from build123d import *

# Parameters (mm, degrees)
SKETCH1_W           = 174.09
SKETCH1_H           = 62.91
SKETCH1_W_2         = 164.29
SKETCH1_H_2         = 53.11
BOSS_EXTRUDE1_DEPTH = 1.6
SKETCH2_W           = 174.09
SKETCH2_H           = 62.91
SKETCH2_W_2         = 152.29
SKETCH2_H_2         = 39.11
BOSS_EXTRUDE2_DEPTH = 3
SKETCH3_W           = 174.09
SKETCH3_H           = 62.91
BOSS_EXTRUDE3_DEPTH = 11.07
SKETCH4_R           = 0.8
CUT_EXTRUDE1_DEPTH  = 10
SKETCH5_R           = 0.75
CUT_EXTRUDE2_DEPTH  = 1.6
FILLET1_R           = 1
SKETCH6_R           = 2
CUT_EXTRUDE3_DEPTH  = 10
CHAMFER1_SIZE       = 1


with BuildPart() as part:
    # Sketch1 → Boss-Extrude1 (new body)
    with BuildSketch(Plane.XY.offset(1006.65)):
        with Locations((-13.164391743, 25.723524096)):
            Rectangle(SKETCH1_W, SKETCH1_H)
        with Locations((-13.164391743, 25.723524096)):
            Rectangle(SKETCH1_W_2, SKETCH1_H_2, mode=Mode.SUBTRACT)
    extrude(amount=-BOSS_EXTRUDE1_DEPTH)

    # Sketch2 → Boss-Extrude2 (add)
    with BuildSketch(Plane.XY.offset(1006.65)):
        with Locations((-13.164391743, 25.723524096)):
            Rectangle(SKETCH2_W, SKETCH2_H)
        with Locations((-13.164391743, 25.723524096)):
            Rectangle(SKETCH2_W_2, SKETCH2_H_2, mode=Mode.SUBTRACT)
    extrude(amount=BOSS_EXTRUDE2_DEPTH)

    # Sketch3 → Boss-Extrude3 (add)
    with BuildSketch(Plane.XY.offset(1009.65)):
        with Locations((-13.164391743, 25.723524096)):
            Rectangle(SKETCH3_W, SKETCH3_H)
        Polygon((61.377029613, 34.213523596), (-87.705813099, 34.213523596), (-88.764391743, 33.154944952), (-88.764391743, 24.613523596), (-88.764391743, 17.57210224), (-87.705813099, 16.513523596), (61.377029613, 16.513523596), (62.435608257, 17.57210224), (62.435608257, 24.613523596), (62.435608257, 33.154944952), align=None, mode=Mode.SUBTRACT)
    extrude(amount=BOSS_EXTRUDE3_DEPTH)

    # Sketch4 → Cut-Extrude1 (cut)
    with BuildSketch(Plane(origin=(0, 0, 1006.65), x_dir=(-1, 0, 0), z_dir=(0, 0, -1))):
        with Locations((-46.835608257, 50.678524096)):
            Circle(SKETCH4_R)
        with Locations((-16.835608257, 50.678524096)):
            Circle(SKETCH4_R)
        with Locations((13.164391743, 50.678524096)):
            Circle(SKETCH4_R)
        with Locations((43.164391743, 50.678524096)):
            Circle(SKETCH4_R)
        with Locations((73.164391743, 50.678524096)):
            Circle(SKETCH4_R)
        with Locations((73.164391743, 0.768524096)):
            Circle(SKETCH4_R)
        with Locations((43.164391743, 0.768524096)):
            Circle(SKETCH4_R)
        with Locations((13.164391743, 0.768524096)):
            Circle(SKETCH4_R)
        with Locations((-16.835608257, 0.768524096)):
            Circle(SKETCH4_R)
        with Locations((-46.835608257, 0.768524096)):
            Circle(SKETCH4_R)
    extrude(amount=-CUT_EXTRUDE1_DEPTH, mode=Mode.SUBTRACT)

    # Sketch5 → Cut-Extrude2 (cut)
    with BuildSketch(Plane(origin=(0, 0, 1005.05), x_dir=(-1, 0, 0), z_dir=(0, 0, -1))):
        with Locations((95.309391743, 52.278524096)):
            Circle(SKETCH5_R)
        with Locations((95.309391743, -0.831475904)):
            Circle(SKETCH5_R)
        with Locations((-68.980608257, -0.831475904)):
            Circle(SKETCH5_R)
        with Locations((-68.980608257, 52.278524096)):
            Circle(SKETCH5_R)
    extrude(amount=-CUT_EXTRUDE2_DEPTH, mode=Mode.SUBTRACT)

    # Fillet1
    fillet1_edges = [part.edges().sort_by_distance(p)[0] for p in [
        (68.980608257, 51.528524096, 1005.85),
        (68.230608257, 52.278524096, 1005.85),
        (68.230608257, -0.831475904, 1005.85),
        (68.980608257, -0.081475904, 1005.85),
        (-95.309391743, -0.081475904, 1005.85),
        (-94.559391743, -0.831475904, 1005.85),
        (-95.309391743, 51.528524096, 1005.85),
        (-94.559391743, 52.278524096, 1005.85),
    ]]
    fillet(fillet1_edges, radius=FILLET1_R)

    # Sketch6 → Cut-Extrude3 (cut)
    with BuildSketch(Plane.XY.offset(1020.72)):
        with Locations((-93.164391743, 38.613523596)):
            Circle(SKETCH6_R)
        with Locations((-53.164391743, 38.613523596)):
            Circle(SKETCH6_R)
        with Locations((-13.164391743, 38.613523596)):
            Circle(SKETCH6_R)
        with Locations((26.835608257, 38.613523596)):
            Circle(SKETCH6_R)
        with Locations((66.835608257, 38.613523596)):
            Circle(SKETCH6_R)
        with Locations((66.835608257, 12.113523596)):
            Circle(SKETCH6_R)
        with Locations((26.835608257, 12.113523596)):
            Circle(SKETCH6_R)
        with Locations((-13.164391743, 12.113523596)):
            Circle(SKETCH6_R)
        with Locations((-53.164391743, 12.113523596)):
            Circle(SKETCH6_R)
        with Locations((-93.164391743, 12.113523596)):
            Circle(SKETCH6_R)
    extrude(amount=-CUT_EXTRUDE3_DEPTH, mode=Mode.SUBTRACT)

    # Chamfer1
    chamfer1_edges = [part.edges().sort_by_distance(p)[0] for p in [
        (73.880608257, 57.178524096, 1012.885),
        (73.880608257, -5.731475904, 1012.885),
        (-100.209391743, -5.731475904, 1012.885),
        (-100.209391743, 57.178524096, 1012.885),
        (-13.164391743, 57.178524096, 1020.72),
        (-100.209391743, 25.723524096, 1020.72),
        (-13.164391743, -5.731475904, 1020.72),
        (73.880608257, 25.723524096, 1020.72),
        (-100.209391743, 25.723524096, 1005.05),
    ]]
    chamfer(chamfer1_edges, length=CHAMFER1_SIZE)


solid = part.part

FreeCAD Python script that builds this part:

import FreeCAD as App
import Part
import Sketcher

V = App.Vector
Q = App.Units.Quantity


def edges_at(feature, points):
    """Names of the edges that pass closest to the given points."""
    edges = feature.Shape.Edges
    near = lambda p: min(range(len(edges)), key=lambda i: edges[i].distToShape(Part.Vertex(*p))[0])
    return sorted({f"Edge{near(p) + 1}" for p in points})


def add_polygon(sketch, points):
    """Adds a closed chain of lines whose ends are joined by coincident constraints."""
    first, n = sketch.GeometryCount, len(points)
    for a, b in zip(points, points[1:] + points[:1]):
        sketch.addGeometry(Part.LineSegment(App.Vector(*a, 0), App.Vector(*b, 0)), False)
    for i in range(n):
        sketch.addConstraint(Sketcher.Constraint("Coincident", first + i, 2, first + (i + 1) % n, 1))

doc = App.newDocument("Part")
params = doc.addObject("Spreadsheet::Sheet", "Params")
for row, (alias, value) in enumerate([
    ("sketch1_width", "174.09 mm"),
    ("sketch1_width2", "164.29 mm"),
    ("sketch1_height", "62.91 mm"),
    ("sketch1_height2", "53.11 mm"),
    ("pad1_length", "1.6 mm"),
    ("sketch2_width", "174.09 mm"),
    ("sketch2_width2", "152.29 mm"),
    ("sketch2_height", "62.91 mm"),
    ("sketch2_height2", "39.11 mm"),
    ("pad2_length", "3 mm"),
    ("sketch3_width", "174.09 mm"),
    ("sketch3_height", "62.91 mm"),
    ("pad3_length", "11.07 mm"),
    ("sketch4_diameter", "1.6 mm"),
    ("pocket1_length", "10 mm"),
    ("sketch5_diameter", "1.5 mm"),
    ("pocket2_length", "1.6 mm"),
    ("fillet_radius", "1 mm"),
    ("sketch6_diameter", "4 mm"),
    ("pocket3_length", "10 mm"),
    ("chamfer_size", "1 mm"),
], start=1):
    params.set(f"A{row}", alias)
    params.set(f"B{row}", "=" + value)
    params.setAlias(f"B{row}", alias)

body = doc.addObject("PartDesign::Body", "Body")

# Sketch on XY plane
sketch1 = body.newObject("Sketcher::SketchObject", "Sketch")
sketch1.AttachmentSupport = (doc.getObject("XY_Plane"), [""])
sketch1.MapMode = "FlatFace"
sketch1.AttachmentOffset = App.Placement(V(0, 0, 1006.65), App.Rotation())
add_polygon(sketch1, [(-100, 57), (-100, -6), (74, -6), (74, 57)])  # lines 0-3
add_polygon(sketch1, [(69, -1), (-95, -1), (-95, 52), (69, 52)])  # lines 4-7
sketch1.addConstraint(Sketcher.Constraint("Vertical", 0))
sketch1.addConstraint(Sketcher.Constraint("Horizontal", 1))
sketch1.addConstraint(Sketcher.Constraint("Vertical", 2))
sketch1.addConstraint(Sketcher.Constraint("Horizontal", 3))
sketch1.addConstraint(Sketcher.Constraint("Horizontal", 4))
sketch1.addConstraint(Sketcher.Constraint("Vertical", 5))
sketch1.addConstraint(Sketcher.Constraint("Horizontal", 6))
sketch1.addConstraint(Sketcher.Constraint("Vertical", 7))
sketch1.addConstraint(Sketcher.Constraint("DistanceX", 1, 1, 1, 2, Q("174.09 mm")))
sketch1.addConstraint(Sketcher.Constraint("DistanceX", 4, 2, 4, 1, Q("164.29 mm")))
sketch1.addConstraint(Sketcher.Constraint("DistanceY", 0, 2, 0, 1, Q("62.91 mm")))
sketch1.addConstraint(Sketcher.Constraint("DistanceY", 5, 1, 5, 2, Q("53.11 mm")))
sketch1.addConstraint(Sketcher.Constraint("DistanceX", 0, 2, 4, 2, Q("4.9 mm")))
sketch1.addConstraint(Sketcher.Constraint("DistanceY", 0, 2, 4, 2, Q("4.9 mm")))
sketch1.addConstraint(Sketcher.Constraint("DistanceX", 0, 2, -1, 1, Q("100.209392 mm")))
sketch1.addConstraint(Sketcher.Constraint("DistanceY", 0, 2, -1, 1, Q("5.731476 mm")))
sketch1.setExpression("Constraints[16]", "Params.sketch1_width")
sketch1.setExpression("Constraints[17]", "Params.sketch1_width2")
sketch1.setExpression("Constraints[18]", "Params.sketch1_height")
sketch1.setExpression("Constraints[19]", "Params.sketch1_height2")
pad1 = body.newObject("PartDesign::Pad", "Pad")
pad1.Profile = sketch1
pad1.setExpression("Length", "Params.pad1_length")
pad1.Reversed = True

# Sketch on XY plane
sketch2 = body.newObject("Sketcher::SketchObject", "Sketch001")
sketch2.AttachmentSupport = (doc.getObject("XY_Plane"), [""])
sketch2.MapMode = "FlatFace"
sketch2.AttachmentOffset = App.Placement(V(0, 0, 1006.65), App.Rotation())
add_polygon(sketch2, [(-100, 57), (-100, -6), (74, -6), (74, 57)])  # lines 0-3
add_polygon(sketch2, [(63, 6), (-89, 6), (-89, 45), (63, 45)])  # lines 4-7
sketch2.addConstraint(Sketcher.Constraint("Vertical", 0))
sketch2.addConstraint(Sketcher.Constraint("Horizontal", 1))
sketch2.addConstraint(Sketcher.Constraint("Vertical", 2))
sketch2.addConstraint(Sketcher.Constraint("Horizontal", 3))
sketch2.addConstraint(Sketcher.Constraint("Horizontal", 4))
sketch2.addConstraint(Sketcher.Constraint("Vertical", 5))
sketch2.addConstraint(Sketcher.Constraint("Horizontal", 6))
sketch2.addConstraint(Sketcher.Constraint("Vertical", 7))
sketch2.addConstraint(Sketcher.Constraint("DistanceX", 1, 1, 1, 2, Q("174.09 mm")))
sketch2.addConstraint(Sketcher.Constraint("DistanceX", 4, 2, 4, 1, Q("152.29 mm")))
sketch2.addConstraint(Sketcher.Constraint("DistanceY", 0, 2, 0, 1, Q("62.91 mm")))
sketch2.addConstraint(Sketcher.Constraint("DistanceY", 5, 1, 5, 2, Q("39.11 mm")))
sketch2.addConstraint(Sketcher.Constraint("DistanceX", 0, 2, 4, 2, Q("10.9 mm")))
sketch2.addConstraint(Sketcher.Constraint("DistanceY", 0, 2, 4, 2, Q("11.9 mm")))
sketch2.addConstraint(Sketcher.Constraint("DistanceX", 0, 2, -1, 1, Q("100.209392 mm")))
sketch2.addConstraint(Sketcher.Constraint("DistanceY", 0, 2, -1, 1, Q("5.731476 mm")))
sketch2.setExpression("Constraints[16]", "Params.sketch2_width")
sketch2.setExpression("Constraints[17]", "Params.sketch2_width2")
sketch2.setExpression("Constraints[18]", "Params.sketch2_height")
sketch2.setExpression("Constraints[19]", "Params.sketch2_height2")
pad2 = body.newObject("PartDesign::Pad", "Pad001")
pad2.Profile = sketch2
pad2.setExpression("Length", "Params.pad2_length")

# Sketch on XY plane
sketch3 = body.newObject("Sketcher::SketchObject", "Sketch002")
sketch3.AttachmentSupport = (doc.getObject("XY_Plane"), [""])
sketch3.MapMode = "FlatFace"
sketch3.AttachmentOffset = App.Placement(V(0, 0, 1009.65), App.Rotation())
add_polygon(sketch3, [(-100.2, 57.2), (-100.2, -5.7), (73.9, -5.7), (73.9, 57.2)])  # lines 0-3
add_polygon(sketch3, [(-87.7, 34.2), (61.4, 34.2), (62.4, 33.2), (62.4, 17.6), (61.4, 16.5), (-87.7, 16.5), (-88.8, 17.6), (-88.8, 33.2)])  # lines 4-11
sketch3.addConstraint(Sketcher.Constraint("Vertical", 0))
sketch3.addConstraint(Sketcher.Constraint("Horizontal", 1))
sketch3.addConstraint(Sketcher.Constraint("Vertical", 2))
sketch3.addConstraint(Sketcher.Constraint("Horizontal", 3))
sketch3.addConstraint(Sketcher.Constraint("Horizontal", 4))
sketch3.addConstraint(Sketcher.Constraint("Vertical", 6))
sketch3.addConstraint(Sketcher.Constraint("Horizontal", 8))
sketch3.addConstraint(Sketcher.Constraint("Vertical", 10))
sketch3.addConstraint(Sketcher.Constraint("Perpendicular", 5, 7))
sketch3.addConstraint(Sketcher.Constraint("Perpendicular", 7, 9))
sketch3.addConstraint(Sketcher.Constraint("Perpendicular", 9, 11))
sketch3.addConstraint(Sketcher.Constraint("Horizontal", 6, 2, 9, 2))
sketch3.addConstraint(Sketcher.Constraint("Horizontal", 5, 2, 10, 2))
sketch3.addConstraint(Sketcher.Constraint("Vertical", 4, 2, 7, 2))
sketch3.addConstraint(Sketcher.Constraint("Vertical", 8, 2, 11, 2))
sketch3.addConstraint(Sketcher.Constraint("DistanceX", 1, 1, 1, 2, Q("174.09 mm")))
sketch3.addConstraint(Sketcher.Constraint("DistanceY", 0, 2, 0, 1, Q("62.91 mm")))
sketch3.addConstraint(Sketcher.Constraint("DistanceY", 7, 2, 4, 2, Q("17.7 mm")))
sketch3.addConstraint(Sketcher.Constraint("DistanceY", 4, 2, 2, 2, Q("22.965 mm")))
sketch3.addConstraint(Sketcher.Constraint("DistanceX", 5, 2, 2, 2, Q("11.445 mm")))
sketch3.addConstraint(Sketcher.Constraint("DistanceX", 0, 2, 9, 2, Q("11.445 mm")))
sketch3.addConstraint(Sketcher.Constraint("DistanceX", 4, 1, 4, 2, Q("149.082843 mm")))
sketch3.addConstraint(Sketcher.Constraint("DistanceX", 0, 2, -1, 1, Q("100.209392 mm")))
sketch3.addConstraint(Sketcher.Constraint("DistanceY", 0, 2, -1, 1, Q("5.731476 mm")))
sketch3.setExpression("Constraints[27]", "Params.sketch3_width")
sketch3.setExpression("Constraints[28]", "Params.sketch3_height")
pad3 = body.newObject("PartDesign::Pad", "Pad002")
pad3.Profile = sketch3
pad3.setExpression("Length", "Params.pad3_length")

# Sketch on XY plane
sketch4 = body.newObject("Sketcher::SketchObject", "Sketch003")
sketch4.AttachmentSupport = (doc.getObject("XY_Plane"), [""])
sketch4.MapMode = "FlatFace"
sketch4.AttachmentOffset = App.Placement(V(0, 0, 1006.65), App.Rotation())
sketch4.addGeometry(Part.Circle(V(46.8, 50.7, 0), V(0, 0, 1), 0.8), False)
sketch4.addGeometry(Part.Circle(V(16.8, 50.7, 0), V(0, 0, 1), 0.8), False)
sketch4.addGeometry(Part.Circle(V(-13.2, 50.7, 0), V(0, 0, 1), 0.8), False)
sketch4.addGeometry(Part.Circle(V(-43.2, 50.7, 0), V(0, 0, 1), 0.8), False)
sketch4.addGeometry(Part.Circle(V(-73.2, 50.7, 0), V(0, 0, 1), 0.8), False)
sketch4.addGeometry(Part.Circle(V(-73.2, 0.8, 0), V(0, 0, 1), 0.8), False)
sketch4.addGeometry(Part.Circle(V(-43.2, 0.8, 0), V(0, 0, 1), 0.8), False)
sketch4.addGeometry(Part.Circle(V(-13.2, 0.8, 0), V(0, 0, 1), 0.8), False)
sketch4.addGeometry(Part.Circle(V(16.8, 0.8, 0), V(0, 0, 1), 0.8), False)
sketch4.addGeometry(Part.Circle(V(46.8, 0.8, 0), V(0, 0, 1), 0.8), False)
sketch4.addConstraint(Sketcher.Constraint("Equal", 0, 1))
sketch4.addConstraint(Sketcher.Constraint("Equal", 1, 2))
sketch4.addConstraint(Sketcher.Constraint("Equal", 2, 3))
sketch4.addConstraint(Sketcher.Constraint("Equal", 3, 4))
sketch4.addConstraint(Sketcher.Constraint("Equal", 4, 5))
sketch4.addConstraint(Sketcher.Constraint("Equal", 5, 6))
sketch4.addConstraint(Sketcher.Constraint("Equal", 6, 7))
sketch4.addConstraint(Sketcher.Constraint("Equal", 7, 8))
sketch4.addConstraint(Sketcher.Constraint("Equal", 8, 9))
sketch4.addConstraint(Sketcher.Constraint("Horizontal", 0, 3, 1, 3))
sketch4.addConstraint(Sketcher.Constraint("Horizontal", 1, 3, 2, 3))
sketch4.addConstraint(Sketcher.Constraint("Horizontal", 2, 3, 3, 3))
sketch4.addConstraint(Sketcher.Constraint("Horizontal", 3, 3, 4, 3))
sketch4.addConstraint(Sketcher.Constraint("Horizontal", 5, 3, 6, 3))
sketch4.addConstraint(Sketcher.Constraint("Horizontal", 6, 3, 7, 3))
sketch4.addConstraint(Sketcher.Constraint("Horizontal", 7, 3, 8, 3))
sketch4.addConstraint(Sketcher.Constraint("Horizontal", 8, 3, 9, 3))
sketch4.addConstraint(Sketcher.Constraint("Vertical", 4, 3, 5, 3))
sketch4.addConstraint(Sketcher.Constraint("Vertical", 3, 3, 6, 3))
sketch4.addConstraint(Sketcher.Constraint("Vertical", 2, 3, 7, 3))
sketch4.addConstraint(Sketcher.Constraint("Vertical", 1, 3, 8, 3))
sketch4.addConstraint(Sketcher.Constraint("Vertical", 0, 3, 9, 3))
sketch4.addConstraint(Sketcher.Constraint("Diameter", 0, Q("1.6 mm")))
sketch4.addConstraint(Sketcher.Constraint("DistanceX", 1, 3, 0, 3, Q("30 mm")))
sketch4.addConstraint(Sketcher.Constraint("DistanceX", 2, 3, 1, 3, Q("30 mm")))
sketch4.addConstraint(Sketcher.Constraint("DistanceX", 3, 3, 2, 3, Q("30 mm")))
sketch4.addConstraint(Sketcher.Constraint("DistanceX", 4, 3, 3, 3, Q("30 mm")))
sketch4.addConstraint(Sketcher.Constraint("DistanceY", 5, 3, 4, 3, Q("49.91 mm")))
sketch4.addConstraint(Sketcher.Constraint("DistanceX", -1, 1, 0, 3, Q("46.835608 mm")))
sketch4.addConstraint(Sketcher.Constraint("DistanceY", -1, 1, 0, 3, Q("50.678524 mm")))
sketch4.setExpression("Constraints[22]", "Params.sketch4_diameter")
pocket1 = body.newObject("PartDesign::Pocket", "Pocket")
pocket1.Profile = sketch4
pocket1.setExpression("Length", "Params.pocket1_length")
pocket1.Reversed = True

# Sketch on XY plane
sketch5 = body.newObject("Sketcher::SketchObject", "Sketch004")
sketch5.AttachmentSupport = (doc.getObject("XY_Plane"), [""])
sketch5.MapMode = "FlatFace"
sketch5.AttachmentOffset = App.Placement(V(0, 0, 1005.05), App.Rotation())
sketch5.addGeometry(Part.Circle(V(-95.3, 52.3, 0), V(0, 0, 1), 0.8), False)
sketch5.addGeometry(Part.Circle(V(-95.3, -0.8, 0), V(0, 0, 1), 0.8), False)
sketch5.addGeometry(Part.Circle(V(69, -0.8, 0), V(0, 0, 1), 0.8), False)
sketch5.addGeometry(Part.Circle(V(69, 52.3, 0), V(0, 0, 1), 0.8), False)
sketch5.addConstraint(Sketcher.Constraint("Equal", 0, 1))
sketch5.addConstraint(Sketcher.Constraint("Equal", 1, 2))
sketch5.addConstraint(Sketcher.Constraint("Equal", 2, 3))
sketch5.addConstraint(Sketcher.Constraint("Horizontal", 1, 3, 2, 3))
sketch5.addConstraint(Sketcher.Constraint("Horizontal", 0, 3, 3, 3))
sketch5.addConstraint(Sketcher.Constraint("Vertical", 0, 3, 1, 3))
sketch5.addConstraint(Sketcher.Constraint("Vertical", 2, 3, 3, 3))
sketch5.addConstraint(Sketcher.Constraint("Diameter", 0, Q("1.5 mm")))
sketch5.addConstraint(Sketcher.Constraint("DistanceY", 1, 3, 0, 3, Q("53.11 mm")))
sketch5.addConstraint(Sketcher.Constraint("DistanceX", 1, 3, 2, 3, Q("164.29 mm")))
sketch5.addConstraint(Sketcher.Constraint("DistanceX", 0, 3, -1, 1, Q("95.309392 mm")))
sketch5.addConstraint(Sketcher.Constraint("DistanceY", -1, 1, 0, 3, Q("52.278524 mm")))
sketch5.setExpression("Constraints[7]", "Params.sketch5_diameter")
pocket2 = body.newObject("PartDesign::Pocket", "Pocket001")
pocket2.Profile = sketch5
pocket2.setExpression("Length", "Params.pocket2_length")
pocket2.Reversed = True
doc.recompute()

fillet = body.newObject("PartDesign::Fillet", "Fillet")
fillet.Base = (pocket2, edges_at(pocket2, [
    (68.981, 51.529, 1005.85),
    (68.231, 52.279, 1005.85),
    (68.231, -0.831, 1005.85),
    (68.981, -0.081, 1005.85),
    (-95.309, -0.081, 1005.85),
    (-94.559, -0.831, 1005.85),
    (-95.309, 51.529, 1005.85),
    (-94.559, 52.279, 1005.85),
]))
fillet.setExpression("Radius", "Params.fillet_radius")

# Sketch on XY plane
sketch6 = body.newObject("Sketcher::SketchObject", "Sketch005")
sketch6.AttachmentSupport = (doc.getObject("XY_Plane"), [""])
sketch6.MapMode = "FlatFace"
sketch6.AttachmentOffset = App.Placement(V(0, 0, 1020.72), App.Rotation())
sketch6.addGeometry(Part.Circle(V(-93.2, 38.6, 0), V(0, 0, 1), 2), False)
sketch6.addGeometry(Part.Circle(V(-53.2, 38.6, 0), V(0, 0, 1), 2), False)
sketch6.addGeometry(Part.Circle(V(-13.2, 38.6, 0), V(0, 0, 1), 2), False)
sketch6.addGeometry(Part.Circle(V(26.8, 38.6, 0), V(0, 0, 1), 2), False)
sketch6.addGeometry(Part.Circle(V(66.8, 38.6, 0), V(0, 0, 1), 2), False)
sketch6.addGeometry(Part.Circle(V(66.8, 12.1, 0), V(0, 0, 1), 2), False)
sketch6.addGeometry(Part.Circle(V(26.8, 12.1, 0), V(0, 0, 1), 2), False)
sketch6.addGeometry(Part.Circle(V(-13.2, 12.1, 0), V(0, 0, 1), 2), False)
sketch6.addGeometry(Part.Circle(V(-53.2, 12.1, 0), V(0, 0, 1), 2), False)
sketch6.addGeometry(Part.Circle(V(-93.2, 12.1, 0), V(0, 0, 1), 2), False)
sketch6.addConstraint(Sketcher.Constraint("Equal", 0, 1))
sketch6.addConstraint(Sketcher.Constraint("Equal", 1, 2))
sketch6.addConstraint(Sketcher.Constraint("Equal", 2, 3))
sketch6.addConstraint(Sketcher.Constraint("Equal", 3, 4))
sketch6.addConstraint(Sketcher.Constraint("Equal", 4, 5))
sketch6.addConstraint(Sketcher.Constraint("Equal", 5, 6))
sketch6.addConstraint(Sketcher.Constraint("Equal", 6, 7))
sketch6.addConstraint(Sketcher.Constraint("Equal", 7, 8))
sketch6.addConstraint(Sketcher.Constraint("Equal", 8, 9))
sketch6.addConstraint(Sketcher.Constraint("Horizontal", 0, 3, 1, 3))
sketch6.addConstraint(Sketcher.Constraint("Horizontal", 1, 3, 2, 3))
sketch6.addConstraint(Sketcher.Constraint("Horizontal", 2, 3, 3, 3))
sketch6.addConstraint(Sketcher.Constraint("Horizontal", 3, 3, 4, 3))
sketch6.addConstraint(Sketcher.Constraint("Horizontal", 5, 3, 6, 3))
sketch6.addConstraint(Sketcher.Constraint("Horizontal", 6, 3, 7, 3))
sketch6.addConstraint(Sketcher.Constraint("Horizontal", 7, 3, 8, 3))
sketch6.addConstraint(Sketcher.Constraint("Horizontal", 8, 3, 9, 3))
sketch6.addConstraint(Sketcher.Constraint("Vertical", 4, 3, 5, 3))
sketch6.addConstraint(Sketcher.Constraint("Vertical", 3, 3, 6, 3))
sketch6.addConstraint(Sketcher.Constraint("Vertical", 2, 3, 7, 3))
sketch6.addConstraint(Sketcher.Constraint("Vertical", 1, 3, 8, 3))
sketch6.addConstraint(Sketcher.Constraint("Vertical", 0, 3, 9, 3))
sketch6.addConstraint(Sketcher.Constraint("Diameter", 0, Q("4 mm")))
sketch6.addConstraint(Sketcher.Constraint("DistanceX", 0, 3, 1, 3, Q("40 mm")))
sketch6.addConstraint(Sketcher.Constraint("DistanceX", 1, 3, 2, 3, Q("40 mm")))
sketch6.addConstraint(Sketcher.Constraint("DistanceX", 2, 3, 3, 3, Q("40 mm")))
sketch6.addConstraint(Sketcher.Constraint("DistanceX", 3, 3, 4, 3, Q("40 mm")))
sketch6.addConstraint(Sketcher.Constraint("DistanceY", 5, 3, 4, 3, Q("26.5 mm")))
sketch6.addConstraint(Sketcher.Constraint("DistanceX", 0, 3, -1, 1, Q("93.164392 mm")))
sketch6.addConstraint(Sketcher.Constraint("DistanceY", -1, 1, 0, 3, Q("38.613524 mm")))
sketch6.setExpression("Constraints[22]", "Params.sketch6_diameter")
pocket3 = body.newObject("PartDesign::Pocket", "Pocket002")
pocket3.Profile = sketch6
pocket3.setExpression("Length", "Params.pocket3_length")
doc.recompute()

chamfer = body.newObject("PartDesign::Chamfer", "Chamfer")
chamfer.Base = (pocket3, edges_at(pocket3, [
    (73.881, 57.179, 1012.885),
    (73.881, -5.731, 1012.885),
    (-100.209, -5.731, 1012.885),
    (-100.209, 57.179, 1012.885),
    (-13.164, 57.179, 1020.72),
    (-100.209, 25.724, 1020.72),
    (-13.164, -5.731, 1020.72),
    (73.881, 25.724, 1020.72),
    (-100.209, 25.724, 1005.05),
]))
chamfer.setExpression("Size", "Params.chamfer_size")

doc.recompute()
